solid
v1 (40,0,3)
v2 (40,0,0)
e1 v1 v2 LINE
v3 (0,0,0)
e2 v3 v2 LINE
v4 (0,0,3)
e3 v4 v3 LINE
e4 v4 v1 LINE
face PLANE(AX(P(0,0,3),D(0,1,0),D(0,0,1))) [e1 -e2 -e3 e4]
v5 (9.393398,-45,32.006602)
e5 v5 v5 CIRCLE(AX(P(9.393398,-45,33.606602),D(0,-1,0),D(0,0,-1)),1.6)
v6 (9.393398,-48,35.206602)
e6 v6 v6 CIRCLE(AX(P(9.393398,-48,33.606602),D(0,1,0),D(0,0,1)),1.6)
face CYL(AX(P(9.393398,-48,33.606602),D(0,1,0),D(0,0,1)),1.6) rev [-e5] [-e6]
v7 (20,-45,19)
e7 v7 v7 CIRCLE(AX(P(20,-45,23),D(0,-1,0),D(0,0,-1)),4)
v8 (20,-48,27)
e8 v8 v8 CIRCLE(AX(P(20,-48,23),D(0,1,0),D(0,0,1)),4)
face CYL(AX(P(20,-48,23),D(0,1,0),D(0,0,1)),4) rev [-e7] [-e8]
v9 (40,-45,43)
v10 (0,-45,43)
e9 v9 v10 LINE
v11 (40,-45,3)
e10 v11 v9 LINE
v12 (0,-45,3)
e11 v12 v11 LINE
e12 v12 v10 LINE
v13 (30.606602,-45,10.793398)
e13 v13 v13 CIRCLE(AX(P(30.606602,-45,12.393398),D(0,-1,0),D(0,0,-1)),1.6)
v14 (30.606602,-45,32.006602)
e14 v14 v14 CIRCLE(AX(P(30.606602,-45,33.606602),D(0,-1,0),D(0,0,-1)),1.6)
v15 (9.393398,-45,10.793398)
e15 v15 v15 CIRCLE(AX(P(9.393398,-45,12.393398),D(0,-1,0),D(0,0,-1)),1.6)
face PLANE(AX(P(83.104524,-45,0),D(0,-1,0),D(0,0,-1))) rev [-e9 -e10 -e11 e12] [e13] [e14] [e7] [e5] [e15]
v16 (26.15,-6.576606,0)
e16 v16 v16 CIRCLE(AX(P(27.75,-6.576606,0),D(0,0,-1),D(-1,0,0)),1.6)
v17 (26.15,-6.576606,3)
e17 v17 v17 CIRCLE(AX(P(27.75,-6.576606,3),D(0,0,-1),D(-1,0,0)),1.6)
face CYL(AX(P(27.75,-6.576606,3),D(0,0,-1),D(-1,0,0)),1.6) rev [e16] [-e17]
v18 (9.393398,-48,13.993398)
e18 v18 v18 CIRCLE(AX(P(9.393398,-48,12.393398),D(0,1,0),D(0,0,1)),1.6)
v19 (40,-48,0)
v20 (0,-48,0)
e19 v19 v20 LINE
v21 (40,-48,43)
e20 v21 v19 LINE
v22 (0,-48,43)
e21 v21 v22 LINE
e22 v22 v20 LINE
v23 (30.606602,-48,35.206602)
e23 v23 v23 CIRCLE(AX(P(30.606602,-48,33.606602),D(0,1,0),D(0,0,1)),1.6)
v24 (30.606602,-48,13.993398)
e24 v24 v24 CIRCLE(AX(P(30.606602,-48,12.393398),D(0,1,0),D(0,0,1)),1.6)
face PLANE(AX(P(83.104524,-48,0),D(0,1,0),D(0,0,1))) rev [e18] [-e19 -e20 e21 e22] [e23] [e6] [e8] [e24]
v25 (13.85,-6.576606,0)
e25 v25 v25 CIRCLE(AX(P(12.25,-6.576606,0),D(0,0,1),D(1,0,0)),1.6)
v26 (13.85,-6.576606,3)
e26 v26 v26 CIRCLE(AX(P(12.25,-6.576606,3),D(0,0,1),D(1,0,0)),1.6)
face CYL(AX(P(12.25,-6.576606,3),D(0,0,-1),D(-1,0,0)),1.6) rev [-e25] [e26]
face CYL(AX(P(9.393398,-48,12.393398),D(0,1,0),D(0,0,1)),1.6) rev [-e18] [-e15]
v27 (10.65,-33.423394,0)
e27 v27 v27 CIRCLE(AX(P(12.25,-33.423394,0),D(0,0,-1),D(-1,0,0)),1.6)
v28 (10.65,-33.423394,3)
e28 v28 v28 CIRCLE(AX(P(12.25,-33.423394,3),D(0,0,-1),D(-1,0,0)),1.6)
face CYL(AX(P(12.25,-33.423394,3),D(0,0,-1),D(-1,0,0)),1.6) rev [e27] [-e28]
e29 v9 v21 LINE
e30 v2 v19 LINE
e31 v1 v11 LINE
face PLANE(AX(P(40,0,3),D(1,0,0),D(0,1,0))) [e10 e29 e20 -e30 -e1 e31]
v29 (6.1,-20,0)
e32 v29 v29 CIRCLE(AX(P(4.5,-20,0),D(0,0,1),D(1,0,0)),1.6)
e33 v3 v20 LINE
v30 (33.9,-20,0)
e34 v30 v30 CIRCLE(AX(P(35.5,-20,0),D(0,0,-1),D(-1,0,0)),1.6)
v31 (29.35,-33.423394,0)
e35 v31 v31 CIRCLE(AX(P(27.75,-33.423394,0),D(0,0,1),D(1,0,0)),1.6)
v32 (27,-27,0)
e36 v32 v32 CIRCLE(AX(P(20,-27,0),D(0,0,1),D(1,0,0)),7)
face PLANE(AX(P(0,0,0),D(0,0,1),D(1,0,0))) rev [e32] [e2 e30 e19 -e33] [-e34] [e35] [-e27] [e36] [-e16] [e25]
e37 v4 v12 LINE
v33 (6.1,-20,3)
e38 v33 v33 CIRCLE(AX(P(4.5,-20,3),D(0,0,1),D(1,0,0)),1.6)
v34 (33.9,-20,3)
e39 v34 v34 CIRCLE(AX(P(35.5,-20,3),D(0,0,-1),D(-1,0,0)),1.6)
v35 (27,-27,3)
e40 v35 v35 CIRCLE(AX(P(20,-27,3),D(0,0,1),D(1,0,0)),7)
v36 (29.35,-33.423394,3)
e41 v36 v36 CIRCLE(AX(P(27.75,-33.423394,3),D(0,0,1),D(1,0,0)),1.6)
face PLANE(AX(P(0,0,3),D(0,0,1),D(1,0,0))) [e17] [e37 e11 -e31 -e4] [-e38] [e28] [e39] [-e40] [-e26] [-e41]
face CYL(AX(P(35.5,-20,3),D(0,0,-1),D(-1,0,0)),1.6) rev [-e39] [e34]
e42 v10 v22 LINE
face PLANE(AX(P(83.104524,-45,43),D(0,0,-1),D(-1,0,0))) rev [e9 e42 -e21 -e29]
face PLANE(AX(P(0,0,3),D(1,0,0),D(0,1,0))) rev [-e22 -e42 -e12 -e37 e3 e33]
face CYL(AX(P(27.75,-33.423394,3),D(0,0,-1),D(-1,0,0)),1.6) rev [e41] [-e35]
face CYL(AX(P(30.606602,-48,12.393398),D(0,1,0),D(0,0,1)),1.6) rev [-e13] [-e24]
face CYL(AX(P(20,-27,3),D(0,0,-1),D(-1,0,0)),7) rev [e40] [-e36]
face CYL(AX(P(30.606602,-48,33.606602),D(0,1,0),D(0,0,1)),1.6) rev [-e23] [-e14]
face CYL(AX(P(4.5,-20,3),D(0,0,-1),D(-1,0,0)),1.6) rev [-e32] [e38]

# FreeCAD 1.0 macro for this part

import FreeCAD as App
import Part
import Sketcher
Q = App.Units.Quantity

doc = App.newDocument("Part")
body = doc.addObject("PartDesign::Body", "Body")

# Sketch on XY plane
sketch1 = doc.addObject("Sketcher::SketchObject", "Sketch")
body.addObject(sketch1)
sketch1.AttachmentSupport = (doc.XY_Plane, [""])
sketch1.MapMode = "FlatFace"
sketch1.addGeometry([
    Part.LineSegment(App.Vector(0, 0, 0), App.Vector(0, -45, 0)),  # 0
    Part.LineSegment(App.Vector(0, -45, 0), App.Vector(40, -45, 0)),  # 1
    Part.LineSegment(App.Vector(40, -45, 0), App.Vector(40, 0, 0)),  # 2
    Part.LineSegment(App.Vector(40, 0, 0), App.Vector(0, 0, 0)),  # 3
    Part.Circle(App.Vector(12.25, -33.423394, 0), App.Vector(0, 0, 1), 1.6),  # 4
    Part.Circle(App.Vector(4.5, -20, 0), App.Vector(0, 0, 1), 1.6),  # 5
    Part.Circle(App.Vector(27.75, -33.423394, 0), App.Vector(0, 0, 1), 1.6),  # 6
    Part.Circle(App.Vector(20, -27, 0), App.Vector(0, 0, 1), 7),  # 7
    Part.Circle(App.Vector(35.5, -20, 0), App.Vector(0, 0, 1), 1.6),  # 8
    Part.Circle(App.Vector(12.25, -6.576606, 0), App.Vector(0, 0, 1), 1.6),  # 9
    Part.Circle(App.Vector(27.75, -6.576606, 0), App.Vector(0, 0, 1), 1.6),  # 10
], False)
sketch1.addConstraint([
    Sketcher.Constraint("Coincident", 0, 2, 1, 1),
    Sketcher.Constraint("Coincident", 1, 2, 2, 1),
    Sketcher.Constraint("Coincident", 2, 2, 3, 1),
    Sketcher.Constraint("Coincident", 3, 2, 0, 1),
    Sketcher.Constraint("Vertical", 0),
    Sketcher.Constraint("Horizontal", 1),
    Sketcher.Constraint("Vertical", 2),
    Sketcher.Constraint("Horizontal", 3),
    Sketcher.Constraint("Coincident", 3, 2, -1, 1),
    Sketcher.Constraint("Equal", 4, 5),
    Sketcher.Constraint("Equal", 5, 6),
    Sketcher.Constraint("Equal", 6, 8),
    Sketcher.Constraint("Equal", 8, 9),
    Sketcher.Constraint("Equal", 9, 10),
    Sketcher.Constraint("Horizontal", 4, 3, 6, 3),
    Sketcher.Constraint("Horizontal", 5, 3, 8, 3),
    Sketcher.Constraint("Horizontal", 9, 3, 10, 3),
    Sketcher.Constraint("Vertical", 4, 3, 9, 3),
    Sketcher.Constraint("Vertical", 6, 3, 10, 3),
    Sketcher.Constraint("Diameter", 7, Q("14 mm")),
    Sketcher.Constraint("Diameter", 4, Q("3.2 mm")),
    Sketcher.Constraint("DistanceX", 1, 1, 1, 2, Q("40 mm")),
    Sketcher.Constraint("DistanceY", 0, 2, 0, 1, Q("45 mm")),
    Sketcher.Constraint("DistanceY", 5, 3, -1, 1, Q("20 mm")),
    Sketcher.Constraint("DistanceX", -1, 1, 7, 3, Q("20 mm")),
    Sketcher.Constraint("DistanceY", 7, 3, -1, 1, Q("27 mm")),
    Sketcher.Constraint("DistanceX", 5, 3, 8, 3, Q("31 mm")),
    Sketcher.Constraint("DistanceX", -1, 1, 5, 3, Q("4.5 mm")),
    Sketcher.Constraint("DistanceX", 4, 3, 6, 3, Q("15.5 mm")),
    Sketcher.Constraint("DistanceX", -1, 1, 4, 3, Q("12.25 mm")),
    Sketcher.Constraint("DistanceY", 4, 3, -1, 1, Q("33.423394 mm")),
    Sketcher.Constraint("DistanceY", 9, 3, -1, 1, Q("6.576606 mm")),
])
pad1 = doc.addObject("PartDesign::Pad", "Pad")
body.addObject(pad1)
pad1.Profile = sketch1
pad1.Length = 3

# Sketch on YZ plane
sketch2 = doc.addObject("Sketcher::SketchObject", "Sketch001")
body.addObject(sketch2)
sketch2.AttachmentSupport = (doc.YZ_Plane, [""])
sketch2.MapMode = "FlatFace"
sketch2.addGeometry([
    Part.LineSegment(App.Vector(-45, 43, 0), App.Vector(-48, 43, 0)),
    Part.LineSegment(App.Vector(-48, 43, 0), App.Vector(-48, 0, 0)),
    Part.LineSegment(App.Vector(-48, 0, 0), App.Vector(-45, 0, 0)),
    Part.LineSegment(App.Vector(-45, 0, 0), App.Vector(-45, 43, 0)),
], False)
sketch2.addConstraint([
    Sketcher.Constraint("Coincident", 0, 2, 1, 1),
    Sketcher.Constraint("Coincident", 1, 2, 2, 1),
    Sketcher.Constraint("Coincident", 2, 2, 3, 1),
    Sketcher.Constraint("Coincident", 3, 2, 0, 1),
    Sketcher.Constraint("Horizontal", 0),
    Sketcher.Constraint("Vertical", 1),
    Sketcher.Constraint("Horizontal", 2),
    Sketcher.Constraint("Vertical", 3),
    Sketcher.Constraint("PointOnObject", 1, 2, -1),
    Sketcher.Constraint("DistanceX", 0, 2, 0, 1, Q("3 mm")),
    Sketcher.Constraint("DistanceY", 1, 2, 1, 1, Q("43 mm")),
    Sketcher.Constraint("DistanceX", 0, 2, -1, 1, Q("48 mm")),
])
pad2 = doc.addObject("PartDesign::Pad", "Pad001")
body.addObject(pad2)
pad2.Profile = sketch2
pad2.Length = 40

# Sketch on XZ plane
sketch3 = doc.addObject("Sketcher::SketchObject", "Sketch002")
body.addObject(sketch3)
sketch3.AttachmentSupport = (doc.XZ_Plane, [""])
sketch3.MapMode = "FlatFace"
sketch3.AttachmentOffset = App.Placement(App.Vector(0, 0, 45), App.Rotation())
sketch3.addGeometry([
    Part.Circle(App.Vector(9.393398, 33.606602, 0), App.Vector(0, 0, 1), 1.6),  # 0
    Part.Circle(App.Vector(20, 23, 0), App.Vector(0, 0, 1), 4),  # 1
    Part.Circle(App.Vector(9.393398, 12.393398, 0), App.Vector(0, 0, 1), 1.6),  # 2
    Part.Circle(App.Vector(30.606602, 12.393398, 0), App.Vector(0, 0, 1), 1.6),  # 3
    Part.Circle(App.Vector(30.606602, 33.606602, 0), App.Vector(0, 0, 1), 1.6),  # 4
], False)
sketch3.addConstraint([
    Sketcher.Constraint("Equal", 0, 2),
    Sketcher.Constraint("Equal", 2, 3),
    Sketcher.Constraint("Equal", 3, 4),
    Sketcher.Constraint("Horizontal", 2, 3, 3, 3),
    Sketcher.Constraint("Horizontal", 0, 3, 4, 3),
    Sketcher.Constraint("Vertical", 0, 3, 2, 3),
    Sketcher.Constraint("Vertical", 3, 3, 4, 3),
    Sketcher.Constraint("Diameter", 1, Q("8 mm")),
    Sketcher.Constraint("Diameter", 0, Q("3.2 mm")),
    Sketcher.Constraint("DistanceX", -1, 1, 1, 3, Q("20 mm")),
    Sketcher.Constraint("DistanceY", -1, 1, 1, 3, Q("23 mm")),
    Sketcher.Constraint("DistanceX", -1, 1, 0, 3, Q("9.393398 mm")),
    Sketcher.Constraint("DistanceY", -1, 1, 0, 3, Q("33.606602 mm")),
    Sketcher.Constraint("DistanceY", -1, 1, 2, 3, Q("12.393398 mm")),
    Sketcher.Constraint("DistanceX", -1, 1, 3, 3, Q("30.606602 mm")),
])
pocket1 = doc.addObject("PartDesign::Pocket", "Pocket")
body.addObject(pocket1)
pocket1.Profile = sketch3
pocket1.Type = "ThroughAll"
pocket1.Midplane = True

doc.recompute()
